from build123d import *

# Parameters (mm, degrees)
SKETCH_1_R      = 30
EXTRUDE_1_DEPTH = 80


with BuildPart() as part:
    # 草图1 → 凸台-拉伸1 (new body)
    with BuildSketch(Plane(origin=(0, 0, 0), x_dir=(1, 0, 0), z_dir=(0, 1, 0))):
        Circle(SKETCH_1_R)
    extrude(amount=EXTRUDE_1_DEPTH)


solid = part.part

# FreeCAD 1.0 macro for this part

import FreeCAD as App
import Part
import Sketcher

V = App.Vector

doc = App.newDocument("Part")
params = doc.addObject("Spreadsheet::Sheet", "Params")
for row, (alias, value) in enumerate([
    ("sketch1_diameter", "60 mm"),
    ("pad1_length", "80 mm"),
], start=1):
    params.set(f"A{row}", alias)
    params.set(f"B{row}", "=" + value)
    params.setAlias(f"B{row}", alias)

body = doc.addObject("PartDesign::Body", "Body")

# Sketch on XZ plane
sketch1 = body.newObject("Sketcher::SketchObject", "Sketch")
sketch1.AttachmentSupport = (doc.getObject("XZ_Plane"), [""])
sketch1.MapMode = "FlatFace"
sketch1.addGeometry(Part.Circle(V(0, 0, 0), V(0, 0, 1), 30), False)
sketch1.addConstraint(Sketcher.Constraint("Coincident", 0, 3, -1, 1))
sketch1.addConstraint(Sketcher.Constraint("Diameter", 0, 60.0))
sketch1.setExpression("Constraints[1]", "Params.sketch1_diameter")
pad1 = body.newObject("PartDesign::Pad", "Pad")
pad1.Profile = sketch1
pad1.setExpression("Length", "Params.pad1_length")
pad1.Reversed = True

doc.recompute()
